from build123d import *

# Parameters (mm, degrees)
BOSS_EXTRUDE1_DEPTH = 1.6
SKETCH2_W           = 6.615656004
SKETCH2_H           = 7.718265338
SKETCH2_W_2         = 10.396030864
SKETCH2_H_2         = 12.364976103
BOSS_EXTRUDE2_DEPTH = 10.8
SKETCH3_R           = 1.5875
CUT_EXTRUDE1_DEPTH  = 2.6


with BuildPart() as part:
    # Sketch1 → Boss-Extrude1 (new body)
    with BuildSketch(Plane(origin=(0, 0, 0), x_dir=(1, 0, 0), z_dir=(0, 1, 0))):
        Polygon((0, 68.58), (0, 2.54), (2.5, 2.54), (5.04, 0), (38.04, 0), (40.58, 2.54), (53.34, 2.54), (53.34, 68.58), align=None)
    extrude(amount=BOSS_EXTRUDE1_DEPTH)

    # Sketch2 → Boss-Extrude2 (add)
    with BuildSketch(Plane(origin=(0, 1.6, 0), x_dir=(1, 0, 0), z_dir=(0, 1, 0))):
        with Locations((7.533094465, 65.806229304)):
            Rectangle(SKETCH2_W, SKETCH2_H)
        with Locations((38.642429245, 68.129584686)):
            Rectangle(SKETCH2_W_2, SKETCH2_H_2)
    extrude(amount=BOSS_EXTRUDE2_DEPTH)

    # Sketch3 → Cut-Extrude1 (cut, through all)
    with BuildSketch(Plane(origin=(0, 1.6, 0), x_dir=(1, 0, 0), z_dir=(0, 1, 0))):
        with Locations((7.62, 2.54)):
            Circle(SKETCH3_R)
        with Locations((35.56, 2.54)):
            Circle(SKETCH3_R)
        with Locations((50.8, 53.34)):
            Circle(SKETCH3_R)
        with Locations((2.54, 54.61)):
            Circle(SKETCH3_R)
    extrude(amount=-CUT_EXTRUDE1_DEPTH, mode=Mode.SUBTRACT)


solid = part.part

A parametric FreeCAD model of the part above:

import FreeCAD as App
import Part
import Sketcher

doc = App.newDocument("Part")
body = doc.addObject("PartDesign::Body", "Body")

# Sketch on XZ plane
sketch1 = body.newObject("Sketcher::SketchObject", "Sketch")
sketch1.AttachmentSupport = (doc.getObject("XZ_Plane"), [""])
sketch1.MapMode = "FlatFace"
sketch1.addGeometry([
    Part.LineSegment(App.Vector(0, -68.6, 0), App.Vector(0, -2.5, 0)),  # 0
    Part.LineSegment(App.Vector(0, -2.5, 0), App.Vector(2.5, -2.5, 0)),  # 1
    Part.LineSegment(App.Vector(2.5, -2.5, 0), App.Vector(5, 0, 0)),  # 2
    Part.LineSegment(App.Vector(5, 0, 0), App.Vector(38, 0, 0)),  # 3
    Part.LineSegment(App.Vector(38, 0, 0), App.Vector(40.6, -2.5, 0)),  # 4
    Part.LineSegment(App.Vector(40.6, -2.5, 0), App.Vector(53.3, -2.5, 0)),  # 5
    Part.LineSegment(App.Vector(53.3, -2.5, 0), App.Vector(53.3, -68.6, 0)),  # 6
    Part.LineSegment(App.Vector(53.3, -68.6, 0), App.Vector(0, -68.6, 0)),  # 7
], False)
sketch1.addConstraint([
    Sketcher.Constraint("Coincident", 0, 2, 1, 1),
    Sketcher.Constraint("Coincident", 1, 2, 2, 1),
    Sketcher.Constraint("Coincident", 2, 2, 3, 1),
    Sketcher.Constraint("Coincident", 3, 2, 4, 1),
    Sketcher.Constraint("Coincident", 4, 2, 5, 1),
    Sketcher.Constraint("Coincident", 5, 2, 6, 1),
    Sketcher.Constraint("Coincident", 6, 2, 7, 1),
    Sketcher.Constraint("Coincident", 7, 2, 0, 1),
    Sketcher.Constraint("Vertical", 0),
    Sketcher.Constraint("Horizontal", 1),
    Sketcher.Constraint("Horizontal", 3),
    Sketcher.Constraint("Horizontal", 5),
    Sketcher.Constraint("Vertical", 6),
    Sketcher.Constraint("Horizontal", 7),
    Sketcher.Constraint("PointOnObject", 0, 2, -2),
    Sketcher.Constraint("PointOnObject", 2, 2, -1),
    Sketcher.Constraint("Perpendicular", 2, 4),
    Sketcher.Constraint("Horizontal", 1, 2, 4, 2),
    Sketcher.Constraint("Equal", 2, 4),
    Sketcher.Constraint("DistanceX", 3, 1, 3, 2, 33.0),
    Sketcher.Constraint("DistanceX", 1, 1, 1, 2, 2.5),
    Sketcher.Constraint("DistanceX", 5, 1, 5, 2, 12.76),
    Sketcher.Constraint("DistanceX", 7, 2, 7, 1, 53.34),
    Sketcher.Constraint("DistanceY", 0, 1, 0, 2, 66.04),
])
pad1 = body.newObject("PartDesign::Pad", "Pad")
pad1.Profile = sketch1
pad1.Length = 1.6
pad1.Reversed = True

# Sketch on XZ plane
sketch2 = body.newObject("Sketcher::SketchObject", "Sketch001")
sketch2.AttachmentSupport = (doc.getObject("XZ_Plane"), [""])
sketch2.MapMode = "FlatFace"
sketch2.AttachmentOffset = App.Placement(App.Vector(0, 0, -1.6), App.Rotation())
sketch2.addGeometry([
    Part.LineSegment(App.Vector(4, -70, 0), App.Vector(4, -62, 0)),  # 0
    Part.LineSegment(App.Vector(4, -62, 0), App.Vector(11, -62, 0)),  # 1
    Part.LineSegment(App.Vector(11, -62, 0), App.Vector(11, -70, 0)),  # 2
    Part.LineSegment(App.Vector(11, -70, 0), App.Vector(4, -70, 0)),  # 3
    Part.LineSegment(App.Vector(33, -74, 0), App.Vector(33, -62, 0)),  # 4
    Part.LineSegment(App.Vector(33, -62, 0), App.Vector(44, -62, 0)),  # 5
    Part.LineSegment(App.Vector(44, -62, 0), App.Vector(44, -74, 0)),  # 6
    Part.LineSegment(App.Vector(44, -74, 0), App.Vector(33, -74, 0)),  # 7
], False)
sketch2.addConstraint([
    Sketcher.Constraint("Coincident", 0, 2, 1, 1),
    Sketcher.Constraint("Coincident", 1, 2, 2, 1),
    Sketcher.Constraint("Coincident", 2, 2, 3, 1),
    Sketcher.Constraint("Coincident", 3, 2, 0, 1),
    Sketcher.Constraint("Coincident", 4, 2, 5, 1),
    Sketcher.Constraint("Coincident", 5, 2, 6, 1),
    Sketcher.Constraint("Coincident", 6, 2, 7, 1),
    Sketcher.Constraint("Coincident", 7, 2, 4, 1),
    Sketcher.Constraint("Vertical", 0),
    Sketcher.Constraint("Horizontal", 1),
    Sketcher.Constraint("Vertical", 2),
    Sketcher.Constraint("Horizontal", 3),
    Sketcher.Constraint("Vertical", 4),
    Sketcher.Constraint("Horizontal", 5),
    Sketcher.Constraint("Vertical", 6),
    Sketcher.Constraint("Horizontal", 7),
    Sketcher.Constraint("Horizontal", 1, 2, 4, 2),
    Sketcher.Constraint("DistanceX", 5, 1, 5, 2, 10.396031),
    Sketcher.Constraint("DistanceX", 1, 1, 1, 2, 6.615656),
    Sketcher.Constraint("DistanceY", 0, 1, 0, 2, 7.718265),
    Sketcher.Constraint("DistanceY", 4, 1, 4, 2, 12.364976),
    Sketcher.Constraint("DistanceY", 2, 2, -1, 1, 69.665362),
    Sketcher.Constraint("DistanceX", 1, 2, 4, 2, 22.603491),
    Sketcher.Constraint("DistanceX", -1, 1, 0, 2, 4.225266),
])
pad2 = body.newObject("PartDesign::Pad", "Pad001")
pad2.Profile = sketch2
pad2.Length = 10.8
pad2.Reversed = True

# Sketch on XZ plane
sketch3 = body.newObject("Sketcher::SketchObject", "Sketch002")
sketch3.AttachmentSupport = (doc.getObject("XZ_Plane"), [""])
sketch3.MapMode = "FlatFace"
sketch3.AttachmentOffset = App.Placement(App.Vector(0, 0, -1.6), App.Rotation())
sketch3.addGeometry([
    Part.Circle(App.Vector(7.6, -2.5, 0), App.Vector(0, 0, 1), 1.6),
    Part.Circle(App.Vector(35.6, -2.5, 0), App.Vector(0, 0, 1), 1.6),
    Part.Circle(App.Vector(50.8, -53.3, 0), App.Vector(0, 0, 1), 1.6),
    Part.Circle(App.Vector(2.5, -54.6, 0), App.Vector(0, 0, 1), 1.6),
], False)
sketch3.addConstraint([
    Sketcher.Constraint("Equal", 0, 1),
    Sketcher.Constraint("Equal", 1, 2),
    Sketcher.Constraint("Equal", 2, 3),
    Sketcher.Constraint("Horizontal", 0, 3, 1, 3),
    Sketcher.Constraint("Diameter", 0, 3.175),
    Sketcher.Constraint("DistanceX", -1, 1, 2, 3, 50.8),
    Sketcher.Constraint("DistanceY", 2, 3, 1, 3, 50.8),
    Sketcher.Constraint("DistanceX", -1, 1, 0, 3, 7.62),
    Sketcher.Constraint("DistanceY", 0, 3, -1, 1, 2.54),
    Sketcher.Constraint("DistanceX", -1, 1, 1, 3, 35.56),
    Sketcher.Constraint("DistanceX", -1, 1, 3, 3, 2.54),
    Sketcher.Constraint("DistanceY", 3, 3, -1, 1, 54.61),
])
pocket1 = body.newObject("PartDesign::Pocket", "Pocket")
pocket1.Profile = sketch3
pocket1.Type = "ThroughAll"
pocket1.Reversed = True

doc.recompute()
